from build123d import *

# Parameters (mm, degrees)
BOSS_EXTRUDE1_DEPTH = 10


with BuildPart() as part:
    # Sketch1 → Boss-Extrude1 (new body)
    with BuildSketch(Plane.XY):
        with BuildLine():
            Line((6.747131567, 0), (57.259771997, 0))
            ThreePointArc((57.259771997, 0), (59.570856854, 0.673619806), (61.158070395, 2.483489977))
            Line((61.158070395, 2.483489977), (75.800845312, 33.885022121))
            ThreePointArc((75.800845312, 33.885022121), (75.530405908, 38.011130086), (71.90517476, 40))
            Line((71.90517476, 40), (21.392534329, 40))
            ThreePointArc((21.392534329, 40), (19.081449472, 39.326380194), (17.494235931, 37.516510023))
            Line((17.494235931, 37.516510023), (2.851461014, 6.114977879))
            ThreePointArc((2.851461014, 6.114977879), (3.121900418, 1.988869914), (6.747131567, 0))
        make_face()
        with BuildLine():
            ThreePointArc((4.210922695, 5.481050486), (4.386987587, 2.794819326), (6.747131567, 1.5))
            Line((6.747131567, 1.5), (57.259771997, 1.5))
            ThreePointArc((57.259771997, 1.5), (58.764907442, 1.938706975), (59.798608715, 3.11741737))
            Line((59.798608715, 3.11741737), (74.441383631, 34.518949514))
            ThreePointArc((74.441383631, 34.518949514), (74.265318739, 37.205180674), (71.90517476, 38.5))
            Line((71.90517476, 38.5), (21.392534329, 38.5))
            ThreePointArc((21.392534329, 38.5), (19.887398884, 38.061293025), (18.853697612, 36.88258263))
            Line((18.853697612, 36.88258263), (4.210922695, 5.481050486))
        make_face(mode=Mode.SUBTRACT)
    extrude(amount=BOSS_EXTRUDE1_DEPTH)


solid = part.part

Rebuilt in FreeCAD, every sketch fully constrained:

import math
import FreeCAD as App
import Part
import Sketcher
from FreeCAD import Vector
Q = App.Units.Quantity

doc = App.newDocument("Part")
body = doc.addObject("PartDesign::Body", "Body")

# Sketch on XY plane
sketch1 = body.newObject("Sketcher::SketchObject", "Sketch")
sketch1.AttachmentSupport = (doc.getObject("XY_Plane"), [""])
sketch1.MapMode = "FlatFace"
sketch1.addGeometry([
    Part.LineSegment(Vector(6.7, 0, 0), Vector(57.3, 0, 0)),  # 0
    Part.ArcOfCircle(Part.Circle(Vector(57.3, 4.3, 0), Vector(0, 0, 1), 4.3), math.radians(-90), math.radians(-25)),  # 1
    Part.LineSegment(Vector(61.2, 2.5, 0), Vector(75.8, 33.9, 0)),  # 2
    Part.ArcOfCircle(Part.Circle(Vector(71.9, 35.7, 0), Vector(0, 0, 1), 4.3), math.radians(-25), math.radians(90)),  # 3
    Part.LineSegment(Vector(71.9, 40, 0), Vector(21.4, 40, 0)),  # 4
    Part.ArcOfCircle(Part.Circle(Vector(21.4, 35.7, 0), Vector(0, 0, 1), 4.3), math.radians(90), math.radians(155)),  # 5
    Part.LineSegment(Vector(17.5, 37.5, 0), Vector(2.9, 6.1, 0)),  # 6
    Part.ArcOfCircle(Part.Circle(Vector(6.7, 4.3, 0), Vector(0, 0, 1), 4.3), math.radians(155), math.radians(270)),  # 7
    Part.ArcOfCircle(Part.Circle(Vector(6.7, 4.3, 0), Vector(0, 0, 1), 2.8), math.radians(155), math.radians(270)),  # 8
    Part.LineSegment(Vector(4.2, 5.5, 0), Vector(18.9, 36.9, 0)),  # 9
    Part.ArcOfCircle(Part.Circle(Vector(21.4, 35.7, 0), Vector(0, 0, 1), 2.8), math.radians(90), math.radians(155)),  # 10
    Part.LineSegment(Vector(21.4, 38.5, 0), Vector(71.9, 38.5, 0)),  # 11
    Part.ArcOfCircle(Part.Circle(Vector(71.9, 35.7, 0), Vector(0, 0, 1), 2.8), math.radians(-25), math.radians(90)),  # 12
    Part.LineSegment(Vector(74.4, 34.5, 0), Vector(59.8, 3.1, 0)),  # 13
    Part.ArcOfCircle(Part.Circle(Vector(57.3, 4.3, 0), Vector(0, 0, 1), 2.8), math.radians(-90), math.radians(-25)),  # 14
    Part.LineSegment(Vector(57.3, 1.5, 0), Vector(6.7, 1.5, 0)),  # 15
], False)
sketch1.addConstraint([
    Sketcher.Constraint("Tangent", 0, 2, 1, 1),
    Sketcher.Constraint("Tangent", 1, 2, 2, 1),
    Sketcher.Constraint("Tangent", 2, 2, 3, 1),
    Sketcher.Constraint("Tangent", 3, 2, 4, 1),
    Sketcher.Constraint("Tangent", 4, 2, 5, 1),
    Sketcher.Constraint("Tangent", 5, 2, 6, 1),
    Sketcher.Constraint("Tangent", 6, 2, 7, 1),
    Sketcher.Constraint("Tangent", 7, 2, 0, 1),
    Sketcher.Constraint("Tangent", 8, 1, 9, 1),
    Sketcher.Constraint("Tangent", 9, 2, 10, 2),
    Sketcher.Constraint("Tangent", 10, 1, 11, 1),
    Sketcher.Constraint("Tangent", 11, 2, 12, 2),
    Sketcher.Constraint("Tangent", 12, 1, 13, 1),
    Sketcher.Constraint("Tangent", 13, 2, 14, 2),
    Sketcher.Constraint("Tangent", 14, 1, 15, 1),
    Sketcher.Constraint("Tangent", 15, 2, 8, 2),
    Sketcher.Constraint("Horizontal", 0),
    Sketcher.Constraint("Horizontal", 4),
    Sketcher.Constraint("Horizontal", 11),
    Sketcher.Constraint("Horizontal", 15),
    Sketcher.Constraint("Coincident", 8, 3, 7, 3),
    Sketcher.Constraint("Coincident", 10, 3, 5, 3),
    Sketcher.Constraint("Coincident", 12, 3, 3, 3),
    Sketcher.Constraint("Coincident", 14, 3, 1, 3),
    Sketcher.Constraint("Equal", 1, 5),
    Sketcher.Constraint("Equal", 3, 7),
    Sketcher.Constraint("Equal", 8, 12),
    Sketcher.Constraint("PointOnObject", 0, 2, -1),
    Sketcher.Constraint("Parallel", 2, 6),
    Sketcher.Constraint("Angle", 2, Q("65 deg")),
    Sketcher.Constraint("DistanceY", -1, 1, 3, 2, Q("40 mm")),
    Sketcher.Constraint("DistanceY", -1, 1, 10, 1, Q("38.5 mm")),
    Sketcher.Constraint("Radius", 1, Q("4.301296 mm")),
    Sketcher.Constraint("Radius", 3, Q("4.298397 mm")),
    Sketcher.Constraint("DistanceX", 0, 1, 0, 2, Q("50.51264 mm")),
    Sketcher.Constraint("DistanceX", -1, 1, 1, 3, Q("57.259772 mm")),
])
pad1 = body.newObject("PartDesign::Pad", "Pad")
pad1.Profile = sketch1
pad1.Length = 10

doc.recompute()
